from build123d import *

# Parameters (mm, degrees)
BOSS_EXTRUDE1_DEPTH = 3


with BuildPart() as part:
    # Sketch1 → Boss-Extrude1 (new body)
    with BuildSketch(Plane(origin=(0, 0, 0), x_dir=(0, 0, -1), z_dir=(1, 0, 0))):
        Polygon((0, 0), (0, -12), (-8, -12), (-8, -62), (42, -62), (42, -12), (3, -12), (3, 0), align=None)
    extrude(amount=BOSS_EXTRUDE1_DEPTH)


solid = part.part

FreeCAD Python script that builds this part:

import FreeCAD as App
import Part
import Sketcher

doc = App.newDocument("Part")
body = doc.addObject("PartDesign::Body", "Body")

sketch1 = body.newObject("Sketcher::SketchObject", "Sketch")
sketch1.AttachmentSupport = (doc.getObject("YZ_Plane"), [""])
sketch1.MapMode = "FlatFace"
sketch1.addGeometry(Part.LineSegment(App.Vector(0, 0, 0), App.Vector(-12, 0, 0)), False)
sketch1.addGeometry(Part.LineSegment(App.Vector(-12, 0, 0), App.Vector(-12, 8, 0)), False)
sketch1.addGeometry(Part.LineSegment(App.Vector(-12, 8, 0), App.Vector(-62, 8, 0)), False)
sketch1.addGeometry(Part.LineSegment(App.Vector(-62, 8, 0), App.Vector(-62, -42, 0)), False)
sketch1.addGeometry(Part.LineSegment(App.Vector(-62, -42, 0), App.Vector(-12, -42, 0)), False)
sketch1.addGeometry(Part.LineSegment(App.Vector(-12, -42, 0), App.Vector(-12, -3, 0)), False)
sketch1.addGeometry(Part.LineSegment(App.Vector(-12, -3, 0), App.Vector(0, -3, 0)), False)
sketch1.addGeometry(Part.LineSegment(App.Vector(0, -3, 0), App.Vector(0, 0, 0)), False)
sketch1.addConstraint(Sketcher.Constraint("Coincident", 0, 2, 1, 1))
sketch1.addConstraint(Sketcher.Constraint("Coincident", 1, 2, 2, 1))
sketch1.addConstraint(Sketcher.Constraint("Coincident", 2, 2, 3, 1))
sketch1.addConstraint(Sketcher.Constraint("Coincident", 3, 2, 4, 1))
sketch1.addConstraint(Sketcher.Constraint("Coincident", 4, 2, 5, 1))
sketch1.addConstraint(Sketcher.Constraint("Coincident", 5, 2, 6, 1))
sketch1.addConstraint(Sketcher.Constraint("Coincident", 6, 2, 7, 1))
sketch1.addConstraint(Sketcher.Constraint("Coincident", 7, 2, 0, 1))
sketch1.addConstraint(Sketcher.Constraint("Horizontal", 0))
sketch1.addConstraint(Sketcher.Constraint("Vertical", 1))
sketch1.addConstraint(Sketcher.Constraint("Horizontal", 2))
sketch1.addConstraint(Sketcher.Constraint("Vertical", 3))
sketch1.addConstraint(Sketcher.Constraint("Horizontal", 4))
sketch1.addConstraint(Sketcher.Constraint("Vertical", 5))
sketch1.addConstraint(Sketcher.Constraint("Horizontal", 6))
sketch1.addConstraint(Sketcher.Constraint("Vertical", 7))
sketch1.addConstraint(Sketcher.Constraint("Coincident", 7, 2, -1, 1))
sketch1.addConstraint(Sketcher.Constraint("Vertical", 1, 2, 4, 2))
sketch1.addConstraint(Sketcher.Constraint("Equal", 4, 3))
sketch1.addConstraint(Sketcher.Constraint("DistanceX", 0, 2, 0, 1, 12.0))
sketch1.addConstraint(Sketcher.Constraint("DistanceX", 2, 2, 2, 1, 50.0))
sketch1.addConstraint(Sketcher.Constraint("DistanceY", 1, 1, 1, 2, 8.0))
sketch1.addConstraint(Sketcher.Constraint("DistanceY", 5, 1, 5, 2, 39.0))
pad1 = body.newObject("PartDesign::Pad", "Pad")
pad1.Profile = sketch1
pad1.Length = 3

doc.recompute()
